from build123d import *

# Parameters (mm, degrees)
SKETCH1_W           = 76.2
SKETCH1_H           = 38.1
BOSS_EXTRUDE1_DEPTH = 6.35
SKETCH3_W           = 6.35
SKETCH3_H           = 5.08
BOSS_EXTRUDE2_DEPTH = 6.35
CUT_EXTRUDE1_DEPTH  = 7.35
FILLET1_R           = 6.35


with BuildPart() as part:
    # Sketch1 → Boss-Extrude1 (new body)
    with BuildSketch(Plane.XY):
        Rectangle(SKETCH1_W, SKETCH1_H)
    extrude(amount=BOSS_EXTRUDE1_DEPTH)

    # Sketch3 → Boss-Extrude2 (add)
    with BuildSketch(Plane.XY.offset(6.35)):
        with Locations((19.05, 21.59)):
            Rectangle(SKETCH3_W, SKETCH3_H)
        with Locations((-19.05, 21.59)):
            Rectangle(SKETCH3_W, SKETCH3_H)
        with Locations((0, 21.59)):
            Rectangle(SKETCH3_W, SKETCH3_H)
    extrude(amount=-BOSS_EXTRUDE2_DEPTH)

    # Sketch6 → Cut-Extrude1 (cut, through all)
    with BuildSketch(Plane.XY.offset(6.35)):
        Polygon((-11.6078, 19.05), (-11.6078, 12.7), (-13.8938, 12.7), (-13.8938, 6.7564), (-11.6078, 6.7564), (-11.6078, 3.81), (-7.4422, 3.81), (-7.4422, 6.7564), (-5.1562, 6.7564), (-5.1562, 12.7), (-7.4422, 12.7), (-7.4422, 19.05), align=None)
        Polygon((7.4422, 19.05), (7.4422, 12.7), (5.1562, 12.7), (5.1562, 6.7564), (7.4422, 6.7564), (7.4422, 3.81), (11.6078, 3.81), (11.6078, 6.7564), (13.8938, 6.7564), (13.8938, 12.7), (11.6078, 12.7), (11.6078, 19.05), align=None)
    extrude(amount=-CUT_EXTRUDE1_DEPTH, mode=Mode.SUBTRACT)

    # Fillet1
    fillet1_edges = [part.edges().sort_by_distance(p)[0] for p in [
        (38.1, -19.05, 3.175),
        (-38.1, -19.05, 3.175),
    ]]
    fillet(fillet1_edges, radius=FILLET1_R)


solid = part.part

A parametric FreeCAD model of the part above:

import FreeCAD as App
import Part
import Sketcher

V = App.Vector
Q = App.Units.Quantity


def edges_at(feature, points):
    """Names of the edges that pass closest to the given points."""
    edges = feature.Shape.Edges
    near = lambda p: min(range(len(edges)), key=lambda i: edges[i].distToShape(Part.Vertex(*p))[0])
    return sorted({f"Edge{near(p) + 1}" for p in points})

doc = App.newDocument("Part")
body = doc.addObject("PartDesign::Body", "Body")

# Sketch on XY plane
sketch1 = doc.addObject("Sketcher::SketchObject", "Sketch")
body.addObject(sketch1)
sketch1.AttachmentSupport = (doc.XY_Plane, [""])
sketch1.MapMode = "FlatFace"
sketch1.addGeometry(Part.LineSegment(V(-38.1, 19.05, 0), V(-38.1, -19.05, 0)), False)
sketch1.addGeometry(Part.LineSegment(V(-38.1, -19.05, 0), V(38.1, -19.05, 0)), False)
sketch1.addGeometry(Part.LineSegment(V(38.1, -19.05, 0), V(38.1, 19.05, 0)), False)
sketch1.addGeometry(Part.LineSegment(V(38.1, 19.05, 0), V(-38.1, 19.05, 0)), False)
sketch1.addConstraint(Sketcher.Constraint("Coincident", 0, 2, 1, 1))
sketch1.addConstraint(Sketcher.Constraint("Coincident", 1, 2, 2, 1))
sketch1.addConstraint(Sketcher.Constraint("Coincident", 2, 2, 3, 1))
sketch1.addConstraint(Sketcher.Constraint("Coincident", 3, 2, 0, 1))
sketch1.addConstraint(Sketcher.Constraint("Vertical", 0))
sketch1.addConstraint(Sketcher.Constraint("Horizontal", 1))
sketch1.addConstraint(Sketcher.Constraint("Vertical", 2))
sketch1.addConstraint(Sketcher.Constraint("Horizontal", 3))
sketch1.addConstraint(Sketcher.Constraint("Symmetric", 0, 2, 2, 2, -1, 1))
sketch1.addConstraint(Sketcher.Constraint("DistanceX", 1, 1, 1, 2, Q("3 in")))
sketch1.addConstraint(Sketcher.Constraint("DistanceY", 0, 2, 0, 1, Q("1.5 in")))
pad1 = doc.addObject("PartDesign::Pad", "Pad")
body.addObject(pad1)
pad1.Profile = sketch1
pad1.Length = Q("0.25 in")

# Sketch on XY plane
sketch2 = doc.addObject("Sketcher::SketchObject", "Sketch001")
body.addObject(sketch2)
sketch2.AttachmentSupport = (doc.XY_Plane, [""])
sketch2.MapMode = "FlatFace"
sketch2.AttachmentOffset = App.Placement(V(0, 0, 0.25 * 25.4), App.Rotation())
sketch2.addGeometry(Part.LineSegment(V(15.875, 24.13, 0), V(15.875, 19.05, 0)), False)
sketch2.addGeometry(Part.LineSegment(V(15.875, 19.05, 0), V(22.225, 19.05, 0)), False)
sketch2.addGeometry(Part.LineSegment(V(22.225, 19.05, 0), V(22.225, 24.13, 0)), False)
sketch2.addGeometry(Part.LineSegment(V(22.225, 24.13, 0), V(15.875, 24.13, 0)), False)
sketch2.addGeometry(Part.LineSegment(V(-22.225, 24.13, 0), V(-22.225, 19.05, 0)), False)
sketch2.addGeometry(Part.LineSegment(V(-22.225, 19.05, 0), V(-15.875, 19.05, 0)), False)
sketch2.addGeometry(Part.LineSegment(V(-15.875, 19.05, 0), V(-15.875, 24.13, 0)), False)
sketch2.addGeometry(Part.LineSegment(V(-15.875, 24.13, 0), V(-22.225, 24.13, 0)), False)
sketch2.addGeometry(Part.LineSegment(V(-3.175, 24.13, 0), V(-3.175, 19.05, 0)), False)
sketch2.addGeometry(Part.LineSegment(V(-3.175, 19.05, 0), V(3.175, 19.05, 0)), False)
sketch2.addGeometry(Part.LineSegment(V(3.175, 19.05, 0), V(3.175, 24.13, 0)), False)
sketch2.addGeometry(Part.LineSegment(V(3.175, 24.13, 0), V(-3.175, 24.13, 0)), False)
sketch2.addConstraint(Sketcher.Constraint("Coincident", 0, 2, 1, 1))
sketch2.addConstraint(Sketcher.Constraint("Coincident", 1, 2, 2, 1))
sketch2.addConstraint(Sketcher.Constraint("Coincident", 2, 2, 3, 1))
sketch2.addConstraint(Sketcher.Constraint("Coincident", 3, 2, 0, 1))
sketch2.addConstraint(Sketcher.Constraint("Coincident", 4, 2, 5, 1))
sketch2.addConstraint(Sketcher.Constraint("Coincident", 5, 2, 6, 1))
sketch2.addConstraint(Sketcher.Constraint("Coincident", 6, 2, 7, 1))
sketch2.addConstraint(Sketcher.Constraint("Coincident", 7, 2, 4, 1))
sketch2.addConstraint(Sketcher.Constraint("Coincident", 8, 2, 9, 1))
sketch2.addConstraint(Sketcher.Constraint("Coincident", 9, 2, 10, 1))
sketch2.addConstraint(Sketcher.Constraint("Coincident", 10, 2, 11, 1))
sketch2.addConstraint(Sketcher.Constraint("Coincident", 11, 2, 8, 1))
sketch2.addConstraint(Sketcher.Constraint("Vertical", 0))
sketch2.addConstraint(Sketcher.Constraint("Horizontal", 1))
sketch2.addConstraint(Sketcher.Constraint("Vertical", 2))
sketch2.addConstraint(Sketcher.Constraint("Horizontal", 3))
sketch2.addConstraint(Sketcher.Constraint("Vertical", 4))
sketch2.addConstraint(Sketcher.Constraint("Horizontal", 5))
sketch2.addConstraint(Sketcher.Constraint("Vertical", 6))
sketch2.addConstraint(Sketcher.Constraint("Horizontal", 7))
sketch2.addConstraint(Sketcher.Constraint("Vertical", 8))
sketch2.addConstraint(Sketcher.Constraint("Horizontal", 9))
sketch2.addConstraint(Sketcher.Constraint("Vertical", 10))
sketch2.addConstraint(Sketcher.Constraint("Horizontal", 11))
sketch2.addConstraint(Sketcher.Constraint("Symmetric", 1, 2, 4, 2, -2))
sketch2.addConstraint(Sketcher.Constraint("Symmetric", 3, 2, 6, 2, -2))
sketch2.addConstraint(Sketcher.Constraint("Horizontal", 5, 2, 8, 2))
sketch2.addConstraint(Sketcher.Constraint("Horizontal", 7, 2, 10, 2))
sketch2.addConstraint(Sketcher.Constraint("Equal", 7, 9))
sketch2.addConstraint(Sketcher.Constraint("DistanceY", 0, 2, 0, 1, Q("0.2 in")))
sketch2.addConstraint(Sketcher.Constraint("DistanceX", 1, 1, 1, 2, Q("0.25 in")))
sketch2.addConstraint(Sketcher.Constraint("DistanceX", 4, 2, 0, 2, Q("1.5 in")))
sketch2.addConstraint(Sketcher.Constraint("DistanceX", 5, 2, 8, 2, Q("0.5 in")))
sketch2.addConstraint(Sketcher.Constraint("DistanceY", -1, 1, 0, 2, Q("0.75 in")))
pad2 = doc.addObject("PartDesign::Pad", "Pad001")
body.addObject(pad2)
pad2.Profile = sketch2
pad2.Length = Q("0.25 in")
pad2.Reversed = True

# Sketch on XY plane
sketch3 = doc.addObject("Sketcher::SketchObject", "Sketch002")
body.addObject(sketch3)
sketch3.AttachmentSupport = (doc.XY_Plane, [""])
sketch3.MapMode = "FlatFace"
sketch3.AttachmentOffset = App.Placement(V(0, 0, 0.25 * 25.4), App.Rotation())
sketch3.addGeometry(Part.LineSegment(V(-11.6078, 19.05, 0), V(-11.6078, 12.7, 0)), False)
sketch3.addGeometry(Part.LineSegment(V(-11.6078, 12.7, 0), V(-13.8938, 12.7, 0)), False)
sketch3.addGeometry(Part.LineSegment(V(-13.8938, 12.7, 0), V(-13.8938, 6.7564, 0)), False)
sketch3.addGeometry(Part.LineSegment(V(-13.8938, 6.7564, 0), V(-11.6078, 6.7564, 0)), False)
sketch3.addGeometry(Part.LineSegment(V(-11.6078, 6.7564, 0), V(-11.6078, 3.81, 0)), False)
sketch3.addGeometry(Part.LineSegment(V(-11.6078, 3.81, 0), V(-7.4422, 3.81, 0)), False)
sketch3.addGeometry(Part.LineSegment(V(-7.4422, 3.81, 0), V(-7.4422, 6.7564, 0)), False)
sketch3.addGeometry(Part.LineSegment(V(-7.4422, 6.7564, 0), V(-5.1562, 6.7564, 0)), False)
sketch3.addGeometry(Part.LineSegment(V(-5.1562, 6.7564, 0), V(-5.1562, 12.7, 0)), False)
sketch3.addGeometry(Part.LineSegment(V(-5.1562, 12.7, 0), V(-7.4422, 12.7, 0)), False)
sketch3.addGeometry(Part.LineSegment(V(-7.4422, 12.7, 0), V(-7.4422, 19.05, 0)), False)
sketch3.addGeometry(Part.LineSegment(V(-7.4422, 19.05, 0), V(-11.6078, 19.05, 0)), False)
sketch3.addGeometry(Part.LineSegment(V(7.4422, 19.05, 0), V(7.4422, 12.7, 0)), False)
sketch3.addGeometry(Part.LineSegment(V(7.4422, 12.7, 0), V(5.1562, 12.7, 0)), False)
sketch3.addGeometry(Part.LineSegment(V(5.1562, 12.7, 0), V(5.1562, 6.7564, 0)), False)
sketch3.addGeometry(Part.LineSegment(V(5.1562, 6.7564, 0), V(7.4422, 6.7564, 0)), False)
sketch3.addGeometry(Part.LineSegment(V(7.4422, 6.7564, 0), V(7.4422, 3.81, 0)), False)
sketch3.addGeometry(Part.LineSegment(V(7.4422, 3.81, 0), V(11.6078, 3.81, 0)), False)
sketch3.addGeometry(Part.LineSegment(V(11.6078, 3.81, 0), V(11.6078, 6.7564, 0)), False)
sketch3.addGeometry(Part.LineSegment(V(11.6078, 6.7564, 0), V(13.8938, 6.7564, 0)), False)
sketch3.addGeometry(Part.LineSegment(V(13.8938, 6.7564, 0), V(13.8938, 12.7, 0)), False)
sketch3.addGeometry(Part.LineSegment(V(13.8938, 12.7, 0), V(11.6078, 12.7, 0)), False)
sketch3.addGeometry(Part.LineSegment(V(11.6078, 12.7, 0), V(11.6078, 19.05, 0)), False)
sketch3.addGeometry(Part.LineSegment(V(11.6078, 19.05, 0), V(7.4422, 19.05, 0)), False)
sketch3.addConstraint(Sketcher.Constraint("Coincident", 0, 2, 1, 1))
sketch3.addConstraint(Sketcher.Constraint("Coincident", 1, 2, 2, 1))
sketch3.addConstraint(Sketcher.Constraint("Coincident", 2, 2, 3, 1))
sketch3.addConstraint(Sketcher.Constraint("Coincident", 3, 2, 4, 1))
sketch3.addConstraint(Sketcher.Constraint("Coincident", 4, 2, 5, 1))
sketch3.addConstraint(Sketcher.Constraint("Coincident", 5, 2, 6, 1))
sketch3.addConstraint(Sketcher.Constraint("Coincident", 6, 2, 7, 1))
sketch3.addConstraint(Sketcher.Constraint("Coincident", 7, 2, 8, 1))
sketch3.addConstraint(Sketcher.Constraint("Coincident", 8, 2, 9, 1))
sketch3.addConstraint(Sketcher.Constraint("Coincident", 9, 2, 10, 1))
sketch3.addConstraint(Sketcher.Constraint("Coincident", 10, 2, 11, 1))
sketch3.addConstraint(Sketcher.Constraint("Coincident", 11, 2, 0, 1))
sketch3.addConstraint(Sketcher.Constraint("Coincident", 12, 2, 13, 1))
sketch3.addConstraint(Sketcher.Constraint("Coincident", 13, 2, 14, 1))
sketch3.addConstraint(Sketcher.Constraint("Coincident", 14, 2, 15, 1))
sketch3.addConstraint(Sketcher.Constraint("Coincident", 15, 2, 16, 1))
sketch3.addConstraint(Sketcher.Constraint("Coincident", 16, 2, 17, 1))
sketch3.addConstraint(Sketcher.Constraint("Coincident", 17, 2, 18, 1))
sketch3.addConstraint(Sketcher.Constraint("Coincident", 18, 2, 19, 1))
sketch3.addConstraint(Sketcher.Constraint("Coincident", 19, 2, 20, 1))
sketch3.addConstraint(Sketcher.Constraint("Coincident", 20, 2, 21, 1))
sketch3.addConstraint(Sketcher.Constraint("Coincident", 21, 2, 22, 1))
sketch3.addConstraint(Sketcher.Constraint("Coincident", 22, 2, 23, 1))
sketch3.addConstraint(Sketcher.Constraint("Coincident", 23, 2, 12, 1))
sketch3.addConstraint(Sketcher.Constraint("Vertical", 0))
sketch3.addConstraint(Sketcher.Constraint("Horizontal", 1))
sketch3.addConstraint(Sketcher.Constraint("Vertical", 2))
sketch3.addConstraint(Sketcher.Constraint("Horizontal", 3))
sketch3.addConstraint(Sketcher.Constraint("Vertical", 4))
sketch3.addConstraint(Sketcher.Constraint("Horizontal", 5))
sketch3.addConstraint(Sketcher.Constraint("Vertical", 6))
sketch3.addConstraint(Sketcher.Constraint("Horizontal", 7))
sketch3.addConstraint(Sketcher.Constraint("Vertical", 8))
sketch3.addConstraint(Sketcher.Constraint("Horizontal", 9))
sketch3.addConstraint(Sketcher.Constraint("Vertical", 10))
sketch3.addConstraint(Sketcher.Constraint("Horizontal", 11))
sketch3.addConstraint(Sketcher.Constraint("Vertical", 12))
sketch3.addConstraint(Sketcher.Constraint("Horizontal", 13))
sketch3.addConstraint(Sketcher.Constraint("Vertical", 14))
sketch3.addConstraint(Sketcher.Constraint("Horizontal", 15))
sketch3.addConstraint(Sketcher.Constraint("Vertical", 16))
sketch3.addConstraint(Sketcher.Constraint("Horizontal", 17))
sketch3.addConstraint(Sketcher.Constraint("Vertical", 18))
sketch3.addConstraint(Sketcher.Constraint("Horizontal", 19))
sketch3.addConstraint(Sketcher.Constraint("Vertical", 20))
sketch3.addConstraint(Sketcher.Constraint("Horizontal", 21))
sketch3.addConstraint(Sketcher.Constraint("Vertical", 22))
sketch3.addConstraint(Sketcher.Constraint("Horizontal", 23))
sketch3.addConstraint(Sketcher.Constraint("Symmetric", 9, 2, 12, 2, -2))
sketch3.addConstraint(Sketcher.Constraint("Symmetric", 7, 2, 14, 2, -2))
sketch3.addConstraint(Sketcher.Constraint("Symmetric", 5, 2, 16, 2, -2))
sketch3.addConstraint(Sketcher.Constraint("Symmetric", 3, 2, 18, 2, -2))
sketch3.addConstraint(Sketcher.Constraint("Symmetric", 1, 2, 20, 2, -2))
sketch3.addConstraint(Sketcher.Constraint("Symmetric", 11, 2, 22, 2, -2))
sketch3.addConstraint(Sketcher.Constraint("Horizontal", 3, 2, 6, 2))
sketch3.addConstraint(Sketcher.Constraint("Horizontal", 1, 2, 8, 2))
sketch3.addConstraint(Sketcher.Constraint("Vertical", 0, 2, 3, 2))
sketch3.addConstraint(Sketcher.Constraint("Vertical", 6, 2, 9, 2))
sketch3.addConstraint(Sketcher.Constraint("Equal", 3, 7))
sketch3.addConstraint(Sketcher.Constraint("DistanceX", 1, 2, 1, 1, Q("0.09 in")))
sketch3.addConstraint(Sketcher.Constraint("DistanceY", 0, 2, 0, 1, Q("0.25 in")))
sketch3.addConstraint(Sketcher.Constraint("DistanceY", -1, 1, 0, 2, Q("0.5 in")))
sketch3.addConstraint(Sketcher.Constraint("DistanceX", 5, 1, 5, 2, Q("0.164 in")))
sketch3.addConstraint(Sketcher.Constraint("DistanceY", 2, 2, 2, 1, Q("0.234 in")))
sketch3.addConstraint(Sketcher.Constraint("DistanceY", 4, 2, 4, 1, Q("0.116 in")))
sketch3.addConstraint(Sketcher.Constraint("DistanceX", 0, 2, -1, 1, Q("0.457 in")))
pocket1 = doc.addObject("PartDesign::Pocket", "Pocket")
body.addObject(pocket1)
pocket1.Profile = sketch3
pocket1.Type = "ThroughAll"
doc.recompute()

fillet = doc.addObject("PartDesign::Fillet", "Fillet")
body.addObject(fillet)
fillet.Base = (pocket1, edges_at(pocket1, [(38.1, -19.05, 3.175), (-38.1, -19.05, 3.175)]))
fillet.Radius = Q("0.25 in")

doc.recompute()
